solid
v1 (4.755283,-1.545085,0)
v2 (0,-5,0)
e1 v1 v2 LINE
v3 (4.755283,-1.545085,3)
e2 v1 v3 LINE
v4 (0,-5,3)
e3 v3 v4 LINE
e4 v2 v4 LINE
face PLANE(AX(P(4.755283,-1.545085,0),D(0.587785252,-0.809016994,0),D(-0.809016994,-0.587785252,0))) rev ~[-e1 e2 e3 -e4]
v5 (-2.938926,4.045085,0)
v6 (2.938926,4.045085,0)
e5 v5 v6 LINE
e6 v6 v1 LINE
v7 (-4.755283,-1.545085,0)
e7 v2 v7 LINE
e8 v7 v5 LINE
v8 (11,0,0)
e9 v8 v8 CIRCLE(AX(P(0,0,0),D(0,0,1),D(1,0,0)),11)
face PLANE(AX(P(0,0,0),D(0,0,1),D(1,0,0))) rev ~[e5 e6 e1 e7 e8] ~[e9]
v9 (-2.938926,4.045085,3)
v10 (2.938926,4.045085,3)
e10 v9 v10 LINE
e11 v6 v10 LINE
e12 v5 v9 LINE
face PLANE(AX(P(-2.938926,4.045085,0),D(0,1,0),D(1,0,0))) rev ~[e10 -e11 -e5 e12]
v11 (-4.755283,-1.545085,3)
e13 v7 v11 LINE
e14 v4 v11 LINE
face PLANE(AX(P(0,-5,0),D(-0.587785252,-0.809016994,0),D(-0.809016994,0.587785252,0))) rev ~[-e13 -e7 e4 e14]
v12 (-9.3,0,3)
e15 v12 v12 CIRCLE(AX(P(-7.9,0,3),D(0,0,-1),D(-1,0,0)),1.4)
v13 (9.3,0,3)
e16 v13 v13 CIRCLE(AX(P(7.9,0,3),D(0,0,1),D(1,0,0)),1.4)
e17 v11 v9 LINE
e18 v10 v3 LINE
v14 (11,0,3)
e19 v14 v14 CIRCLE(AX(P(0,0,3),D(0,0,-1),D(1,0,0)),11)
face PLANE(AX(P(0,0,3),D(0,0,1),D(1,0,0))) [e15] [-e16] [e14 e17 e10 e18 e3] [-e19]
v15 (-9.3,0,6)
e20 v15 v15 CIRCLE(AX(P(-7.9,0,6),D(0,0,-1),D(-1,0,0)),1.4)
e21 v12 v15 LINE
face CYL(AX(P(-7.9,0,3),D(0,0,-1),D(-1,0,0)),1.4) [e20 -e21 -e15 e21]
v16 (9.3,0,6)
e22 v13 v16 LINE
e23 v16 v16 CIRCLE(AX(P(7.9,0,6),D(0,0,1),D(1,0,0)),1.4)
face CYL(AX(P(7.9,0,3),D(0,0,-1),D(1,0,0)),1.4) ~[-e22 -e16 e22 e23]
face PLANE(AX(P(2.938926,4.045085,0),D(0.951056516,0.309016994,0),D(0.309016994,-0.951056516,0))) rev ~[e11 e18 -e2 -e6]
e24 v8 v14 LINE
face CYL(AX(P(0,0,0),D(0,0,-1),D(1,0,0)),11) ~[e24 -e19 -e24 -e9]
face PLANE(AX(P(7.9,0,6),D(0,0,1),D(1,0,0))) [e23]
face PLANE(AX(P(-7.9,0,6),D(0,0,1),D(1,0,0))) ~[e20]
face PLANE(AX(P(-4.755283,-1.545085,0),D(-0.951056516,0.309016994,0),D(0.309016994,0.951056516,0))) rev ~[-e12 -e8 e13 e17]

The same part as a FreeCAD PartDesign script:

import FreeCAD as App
import Part
import Sketcher
from FreeCAD import Vector
Q = App.Units.Quantity


def add_polygon(sketch, points):
    """Adds a closed chain of lines whose ends are joined by coincident constraints."""
    first, n = sketch.GeometryCount, len(points)
    for a, b in zip(points, points[1:] + points[:1]):
        sketch.addGeometry(Part.LineSegment(App.Vector(*a, 0), App.Vector(*b, 0)), False)
    for i in range(n):
        sketch.addConstraint(Sketcher.Constraint("Coincident", first + i, 2, first + (i + 1) % n, 1))

doc = App.newDocument("Part")
params = doc.addObject("Spreadsheet::Sheet", "Params")
for row, (alias, value) in enumerate([
    ("sketch1_diameter", "22 mm"),
    ("pad1_length", "3 mm"),
    ("sketch2_diameter", "2.8 mm"),
    ("pad2_length", "3 mm"),
], start=1):
    params.set(f"A{row}", alias)
    params.set(f"B{row}", "=" + value)
    params.setAlias(f"B{row}", alias)

body = doc.addObject("PartDesign::Body", "Body")

# Sketch on XY plane
sketch1 = doc.addObject("Sketcher::SketchObject", "Sketch")
body.addObject(sketch1)
sketch1.AttachmentSupport = (doc.XY_Plane, [""])
sketch1.MapMode = "FlatFace"
sketch1.addGeometry(Part.Circle(Vector(0, 0, 0), Vector(0, 0, 1), 11), False)  # 0
add_polygon(sketch1, [(3, 4), (5, -2), (0, -5), (-5, -2), (-3, 4)])  # lines 1-5
sketch1.addConstraint([
    Sketcher.Constraint("Horizontal", 5),
    Sketcher.Constraint("Coincident", 0, 3, -1, 1),
    Sketcher.Constraint("Symmetric", 1, 2, 3, 2, -2),
    Sketcher.Constraint("PointOnObject", 2, 2, -2),
    Sketcher.Constraint("Equal", 1, 2),
    Sketcher.Constraint("Equal", 3, 4),
    Sketcher.Constraint("Diameter", 0, Q("22 mm")),
    Sketcher.Constraint("Angle", 1, Q("-72 deg")),
    Sketcher.Constraint("Angle", 2, Q("-144 deg")),
    Sketcher.Constraint("DistanceY", 2, 2, -1, 1, Q("5 mm")),
    Sketcher.Constraint("DistanceX", 5, 1, 5, 2, Q("5.877853 mm")),
])
sketch1.setExpression("Constraints[11]", "Params.sketch1_diameter")
pad1 = doc.addObject("PartDesign::Pad", "Pad")
body.addObject(pad1)
pad1.Profile = sketch1
pad1.setExpression("Length", "Params.pad1_length")

# Sketch on XY plane
sketch2 = doc.addObject("Sketcher::SketchObject", "Sketch001")
body.addObject(sketch2)
sketch2.AttachmentSupport = (doc.XY_Plane, [""])
sketch2.MapMode = "FlatFace"
sketch2.AttachmentOffset = App.Placement(Vector(0, 0, 3), App.Rotation())
sketch2.addGeometry(Part.Circle(Vector(7.9, 0, 0), Vector(0, 0, 1), 1.4), False)
sketch2.addConstraint([
    Sketcher.Constraint("PointOnObject", 0, 3, -1),
    Sketcher.Constraint("Diameter", 0, Q("2.8 mm")),
    Sketcher.Constraint("DistanceX", -1, 1, 0, 3, Q("7.9 mm")),
])
sketch2.setExpression("Constraints[1]", "Params.sketch2_diameter")
pad2 = doc.addObject("PartDesign::Pad", "Pad001")
body.addObject(pad2)
pad2.Profile = sketch2
pad2.setExpression("Length", "Params.pad2_length")
body2 = doc.addObject("PartDesign::Body", "Body001")
doc.recompute()

body2.BaseFeature = body
doc.recompute()

mirroring = doc.addObject("Part::Mirroring", "Mirroring")
mirroring.Source = body
mirroring.Base = Vector(0, 0, 0)
mirroring.Normal = Vector(1, 0, 0)
body3 = doc.addObject("PartDesign::Body", "Body002")
body3.BaseFeature = mirroring
boolean = doc.addObject("PartDesign::Boolean", "Boolean")
body2.addObject(boolean)
boolean.Type = "Fuse"
boolean.addObjects([body3])
doc.recompute()
mirroring.Visibility = False

doc.recompute()
